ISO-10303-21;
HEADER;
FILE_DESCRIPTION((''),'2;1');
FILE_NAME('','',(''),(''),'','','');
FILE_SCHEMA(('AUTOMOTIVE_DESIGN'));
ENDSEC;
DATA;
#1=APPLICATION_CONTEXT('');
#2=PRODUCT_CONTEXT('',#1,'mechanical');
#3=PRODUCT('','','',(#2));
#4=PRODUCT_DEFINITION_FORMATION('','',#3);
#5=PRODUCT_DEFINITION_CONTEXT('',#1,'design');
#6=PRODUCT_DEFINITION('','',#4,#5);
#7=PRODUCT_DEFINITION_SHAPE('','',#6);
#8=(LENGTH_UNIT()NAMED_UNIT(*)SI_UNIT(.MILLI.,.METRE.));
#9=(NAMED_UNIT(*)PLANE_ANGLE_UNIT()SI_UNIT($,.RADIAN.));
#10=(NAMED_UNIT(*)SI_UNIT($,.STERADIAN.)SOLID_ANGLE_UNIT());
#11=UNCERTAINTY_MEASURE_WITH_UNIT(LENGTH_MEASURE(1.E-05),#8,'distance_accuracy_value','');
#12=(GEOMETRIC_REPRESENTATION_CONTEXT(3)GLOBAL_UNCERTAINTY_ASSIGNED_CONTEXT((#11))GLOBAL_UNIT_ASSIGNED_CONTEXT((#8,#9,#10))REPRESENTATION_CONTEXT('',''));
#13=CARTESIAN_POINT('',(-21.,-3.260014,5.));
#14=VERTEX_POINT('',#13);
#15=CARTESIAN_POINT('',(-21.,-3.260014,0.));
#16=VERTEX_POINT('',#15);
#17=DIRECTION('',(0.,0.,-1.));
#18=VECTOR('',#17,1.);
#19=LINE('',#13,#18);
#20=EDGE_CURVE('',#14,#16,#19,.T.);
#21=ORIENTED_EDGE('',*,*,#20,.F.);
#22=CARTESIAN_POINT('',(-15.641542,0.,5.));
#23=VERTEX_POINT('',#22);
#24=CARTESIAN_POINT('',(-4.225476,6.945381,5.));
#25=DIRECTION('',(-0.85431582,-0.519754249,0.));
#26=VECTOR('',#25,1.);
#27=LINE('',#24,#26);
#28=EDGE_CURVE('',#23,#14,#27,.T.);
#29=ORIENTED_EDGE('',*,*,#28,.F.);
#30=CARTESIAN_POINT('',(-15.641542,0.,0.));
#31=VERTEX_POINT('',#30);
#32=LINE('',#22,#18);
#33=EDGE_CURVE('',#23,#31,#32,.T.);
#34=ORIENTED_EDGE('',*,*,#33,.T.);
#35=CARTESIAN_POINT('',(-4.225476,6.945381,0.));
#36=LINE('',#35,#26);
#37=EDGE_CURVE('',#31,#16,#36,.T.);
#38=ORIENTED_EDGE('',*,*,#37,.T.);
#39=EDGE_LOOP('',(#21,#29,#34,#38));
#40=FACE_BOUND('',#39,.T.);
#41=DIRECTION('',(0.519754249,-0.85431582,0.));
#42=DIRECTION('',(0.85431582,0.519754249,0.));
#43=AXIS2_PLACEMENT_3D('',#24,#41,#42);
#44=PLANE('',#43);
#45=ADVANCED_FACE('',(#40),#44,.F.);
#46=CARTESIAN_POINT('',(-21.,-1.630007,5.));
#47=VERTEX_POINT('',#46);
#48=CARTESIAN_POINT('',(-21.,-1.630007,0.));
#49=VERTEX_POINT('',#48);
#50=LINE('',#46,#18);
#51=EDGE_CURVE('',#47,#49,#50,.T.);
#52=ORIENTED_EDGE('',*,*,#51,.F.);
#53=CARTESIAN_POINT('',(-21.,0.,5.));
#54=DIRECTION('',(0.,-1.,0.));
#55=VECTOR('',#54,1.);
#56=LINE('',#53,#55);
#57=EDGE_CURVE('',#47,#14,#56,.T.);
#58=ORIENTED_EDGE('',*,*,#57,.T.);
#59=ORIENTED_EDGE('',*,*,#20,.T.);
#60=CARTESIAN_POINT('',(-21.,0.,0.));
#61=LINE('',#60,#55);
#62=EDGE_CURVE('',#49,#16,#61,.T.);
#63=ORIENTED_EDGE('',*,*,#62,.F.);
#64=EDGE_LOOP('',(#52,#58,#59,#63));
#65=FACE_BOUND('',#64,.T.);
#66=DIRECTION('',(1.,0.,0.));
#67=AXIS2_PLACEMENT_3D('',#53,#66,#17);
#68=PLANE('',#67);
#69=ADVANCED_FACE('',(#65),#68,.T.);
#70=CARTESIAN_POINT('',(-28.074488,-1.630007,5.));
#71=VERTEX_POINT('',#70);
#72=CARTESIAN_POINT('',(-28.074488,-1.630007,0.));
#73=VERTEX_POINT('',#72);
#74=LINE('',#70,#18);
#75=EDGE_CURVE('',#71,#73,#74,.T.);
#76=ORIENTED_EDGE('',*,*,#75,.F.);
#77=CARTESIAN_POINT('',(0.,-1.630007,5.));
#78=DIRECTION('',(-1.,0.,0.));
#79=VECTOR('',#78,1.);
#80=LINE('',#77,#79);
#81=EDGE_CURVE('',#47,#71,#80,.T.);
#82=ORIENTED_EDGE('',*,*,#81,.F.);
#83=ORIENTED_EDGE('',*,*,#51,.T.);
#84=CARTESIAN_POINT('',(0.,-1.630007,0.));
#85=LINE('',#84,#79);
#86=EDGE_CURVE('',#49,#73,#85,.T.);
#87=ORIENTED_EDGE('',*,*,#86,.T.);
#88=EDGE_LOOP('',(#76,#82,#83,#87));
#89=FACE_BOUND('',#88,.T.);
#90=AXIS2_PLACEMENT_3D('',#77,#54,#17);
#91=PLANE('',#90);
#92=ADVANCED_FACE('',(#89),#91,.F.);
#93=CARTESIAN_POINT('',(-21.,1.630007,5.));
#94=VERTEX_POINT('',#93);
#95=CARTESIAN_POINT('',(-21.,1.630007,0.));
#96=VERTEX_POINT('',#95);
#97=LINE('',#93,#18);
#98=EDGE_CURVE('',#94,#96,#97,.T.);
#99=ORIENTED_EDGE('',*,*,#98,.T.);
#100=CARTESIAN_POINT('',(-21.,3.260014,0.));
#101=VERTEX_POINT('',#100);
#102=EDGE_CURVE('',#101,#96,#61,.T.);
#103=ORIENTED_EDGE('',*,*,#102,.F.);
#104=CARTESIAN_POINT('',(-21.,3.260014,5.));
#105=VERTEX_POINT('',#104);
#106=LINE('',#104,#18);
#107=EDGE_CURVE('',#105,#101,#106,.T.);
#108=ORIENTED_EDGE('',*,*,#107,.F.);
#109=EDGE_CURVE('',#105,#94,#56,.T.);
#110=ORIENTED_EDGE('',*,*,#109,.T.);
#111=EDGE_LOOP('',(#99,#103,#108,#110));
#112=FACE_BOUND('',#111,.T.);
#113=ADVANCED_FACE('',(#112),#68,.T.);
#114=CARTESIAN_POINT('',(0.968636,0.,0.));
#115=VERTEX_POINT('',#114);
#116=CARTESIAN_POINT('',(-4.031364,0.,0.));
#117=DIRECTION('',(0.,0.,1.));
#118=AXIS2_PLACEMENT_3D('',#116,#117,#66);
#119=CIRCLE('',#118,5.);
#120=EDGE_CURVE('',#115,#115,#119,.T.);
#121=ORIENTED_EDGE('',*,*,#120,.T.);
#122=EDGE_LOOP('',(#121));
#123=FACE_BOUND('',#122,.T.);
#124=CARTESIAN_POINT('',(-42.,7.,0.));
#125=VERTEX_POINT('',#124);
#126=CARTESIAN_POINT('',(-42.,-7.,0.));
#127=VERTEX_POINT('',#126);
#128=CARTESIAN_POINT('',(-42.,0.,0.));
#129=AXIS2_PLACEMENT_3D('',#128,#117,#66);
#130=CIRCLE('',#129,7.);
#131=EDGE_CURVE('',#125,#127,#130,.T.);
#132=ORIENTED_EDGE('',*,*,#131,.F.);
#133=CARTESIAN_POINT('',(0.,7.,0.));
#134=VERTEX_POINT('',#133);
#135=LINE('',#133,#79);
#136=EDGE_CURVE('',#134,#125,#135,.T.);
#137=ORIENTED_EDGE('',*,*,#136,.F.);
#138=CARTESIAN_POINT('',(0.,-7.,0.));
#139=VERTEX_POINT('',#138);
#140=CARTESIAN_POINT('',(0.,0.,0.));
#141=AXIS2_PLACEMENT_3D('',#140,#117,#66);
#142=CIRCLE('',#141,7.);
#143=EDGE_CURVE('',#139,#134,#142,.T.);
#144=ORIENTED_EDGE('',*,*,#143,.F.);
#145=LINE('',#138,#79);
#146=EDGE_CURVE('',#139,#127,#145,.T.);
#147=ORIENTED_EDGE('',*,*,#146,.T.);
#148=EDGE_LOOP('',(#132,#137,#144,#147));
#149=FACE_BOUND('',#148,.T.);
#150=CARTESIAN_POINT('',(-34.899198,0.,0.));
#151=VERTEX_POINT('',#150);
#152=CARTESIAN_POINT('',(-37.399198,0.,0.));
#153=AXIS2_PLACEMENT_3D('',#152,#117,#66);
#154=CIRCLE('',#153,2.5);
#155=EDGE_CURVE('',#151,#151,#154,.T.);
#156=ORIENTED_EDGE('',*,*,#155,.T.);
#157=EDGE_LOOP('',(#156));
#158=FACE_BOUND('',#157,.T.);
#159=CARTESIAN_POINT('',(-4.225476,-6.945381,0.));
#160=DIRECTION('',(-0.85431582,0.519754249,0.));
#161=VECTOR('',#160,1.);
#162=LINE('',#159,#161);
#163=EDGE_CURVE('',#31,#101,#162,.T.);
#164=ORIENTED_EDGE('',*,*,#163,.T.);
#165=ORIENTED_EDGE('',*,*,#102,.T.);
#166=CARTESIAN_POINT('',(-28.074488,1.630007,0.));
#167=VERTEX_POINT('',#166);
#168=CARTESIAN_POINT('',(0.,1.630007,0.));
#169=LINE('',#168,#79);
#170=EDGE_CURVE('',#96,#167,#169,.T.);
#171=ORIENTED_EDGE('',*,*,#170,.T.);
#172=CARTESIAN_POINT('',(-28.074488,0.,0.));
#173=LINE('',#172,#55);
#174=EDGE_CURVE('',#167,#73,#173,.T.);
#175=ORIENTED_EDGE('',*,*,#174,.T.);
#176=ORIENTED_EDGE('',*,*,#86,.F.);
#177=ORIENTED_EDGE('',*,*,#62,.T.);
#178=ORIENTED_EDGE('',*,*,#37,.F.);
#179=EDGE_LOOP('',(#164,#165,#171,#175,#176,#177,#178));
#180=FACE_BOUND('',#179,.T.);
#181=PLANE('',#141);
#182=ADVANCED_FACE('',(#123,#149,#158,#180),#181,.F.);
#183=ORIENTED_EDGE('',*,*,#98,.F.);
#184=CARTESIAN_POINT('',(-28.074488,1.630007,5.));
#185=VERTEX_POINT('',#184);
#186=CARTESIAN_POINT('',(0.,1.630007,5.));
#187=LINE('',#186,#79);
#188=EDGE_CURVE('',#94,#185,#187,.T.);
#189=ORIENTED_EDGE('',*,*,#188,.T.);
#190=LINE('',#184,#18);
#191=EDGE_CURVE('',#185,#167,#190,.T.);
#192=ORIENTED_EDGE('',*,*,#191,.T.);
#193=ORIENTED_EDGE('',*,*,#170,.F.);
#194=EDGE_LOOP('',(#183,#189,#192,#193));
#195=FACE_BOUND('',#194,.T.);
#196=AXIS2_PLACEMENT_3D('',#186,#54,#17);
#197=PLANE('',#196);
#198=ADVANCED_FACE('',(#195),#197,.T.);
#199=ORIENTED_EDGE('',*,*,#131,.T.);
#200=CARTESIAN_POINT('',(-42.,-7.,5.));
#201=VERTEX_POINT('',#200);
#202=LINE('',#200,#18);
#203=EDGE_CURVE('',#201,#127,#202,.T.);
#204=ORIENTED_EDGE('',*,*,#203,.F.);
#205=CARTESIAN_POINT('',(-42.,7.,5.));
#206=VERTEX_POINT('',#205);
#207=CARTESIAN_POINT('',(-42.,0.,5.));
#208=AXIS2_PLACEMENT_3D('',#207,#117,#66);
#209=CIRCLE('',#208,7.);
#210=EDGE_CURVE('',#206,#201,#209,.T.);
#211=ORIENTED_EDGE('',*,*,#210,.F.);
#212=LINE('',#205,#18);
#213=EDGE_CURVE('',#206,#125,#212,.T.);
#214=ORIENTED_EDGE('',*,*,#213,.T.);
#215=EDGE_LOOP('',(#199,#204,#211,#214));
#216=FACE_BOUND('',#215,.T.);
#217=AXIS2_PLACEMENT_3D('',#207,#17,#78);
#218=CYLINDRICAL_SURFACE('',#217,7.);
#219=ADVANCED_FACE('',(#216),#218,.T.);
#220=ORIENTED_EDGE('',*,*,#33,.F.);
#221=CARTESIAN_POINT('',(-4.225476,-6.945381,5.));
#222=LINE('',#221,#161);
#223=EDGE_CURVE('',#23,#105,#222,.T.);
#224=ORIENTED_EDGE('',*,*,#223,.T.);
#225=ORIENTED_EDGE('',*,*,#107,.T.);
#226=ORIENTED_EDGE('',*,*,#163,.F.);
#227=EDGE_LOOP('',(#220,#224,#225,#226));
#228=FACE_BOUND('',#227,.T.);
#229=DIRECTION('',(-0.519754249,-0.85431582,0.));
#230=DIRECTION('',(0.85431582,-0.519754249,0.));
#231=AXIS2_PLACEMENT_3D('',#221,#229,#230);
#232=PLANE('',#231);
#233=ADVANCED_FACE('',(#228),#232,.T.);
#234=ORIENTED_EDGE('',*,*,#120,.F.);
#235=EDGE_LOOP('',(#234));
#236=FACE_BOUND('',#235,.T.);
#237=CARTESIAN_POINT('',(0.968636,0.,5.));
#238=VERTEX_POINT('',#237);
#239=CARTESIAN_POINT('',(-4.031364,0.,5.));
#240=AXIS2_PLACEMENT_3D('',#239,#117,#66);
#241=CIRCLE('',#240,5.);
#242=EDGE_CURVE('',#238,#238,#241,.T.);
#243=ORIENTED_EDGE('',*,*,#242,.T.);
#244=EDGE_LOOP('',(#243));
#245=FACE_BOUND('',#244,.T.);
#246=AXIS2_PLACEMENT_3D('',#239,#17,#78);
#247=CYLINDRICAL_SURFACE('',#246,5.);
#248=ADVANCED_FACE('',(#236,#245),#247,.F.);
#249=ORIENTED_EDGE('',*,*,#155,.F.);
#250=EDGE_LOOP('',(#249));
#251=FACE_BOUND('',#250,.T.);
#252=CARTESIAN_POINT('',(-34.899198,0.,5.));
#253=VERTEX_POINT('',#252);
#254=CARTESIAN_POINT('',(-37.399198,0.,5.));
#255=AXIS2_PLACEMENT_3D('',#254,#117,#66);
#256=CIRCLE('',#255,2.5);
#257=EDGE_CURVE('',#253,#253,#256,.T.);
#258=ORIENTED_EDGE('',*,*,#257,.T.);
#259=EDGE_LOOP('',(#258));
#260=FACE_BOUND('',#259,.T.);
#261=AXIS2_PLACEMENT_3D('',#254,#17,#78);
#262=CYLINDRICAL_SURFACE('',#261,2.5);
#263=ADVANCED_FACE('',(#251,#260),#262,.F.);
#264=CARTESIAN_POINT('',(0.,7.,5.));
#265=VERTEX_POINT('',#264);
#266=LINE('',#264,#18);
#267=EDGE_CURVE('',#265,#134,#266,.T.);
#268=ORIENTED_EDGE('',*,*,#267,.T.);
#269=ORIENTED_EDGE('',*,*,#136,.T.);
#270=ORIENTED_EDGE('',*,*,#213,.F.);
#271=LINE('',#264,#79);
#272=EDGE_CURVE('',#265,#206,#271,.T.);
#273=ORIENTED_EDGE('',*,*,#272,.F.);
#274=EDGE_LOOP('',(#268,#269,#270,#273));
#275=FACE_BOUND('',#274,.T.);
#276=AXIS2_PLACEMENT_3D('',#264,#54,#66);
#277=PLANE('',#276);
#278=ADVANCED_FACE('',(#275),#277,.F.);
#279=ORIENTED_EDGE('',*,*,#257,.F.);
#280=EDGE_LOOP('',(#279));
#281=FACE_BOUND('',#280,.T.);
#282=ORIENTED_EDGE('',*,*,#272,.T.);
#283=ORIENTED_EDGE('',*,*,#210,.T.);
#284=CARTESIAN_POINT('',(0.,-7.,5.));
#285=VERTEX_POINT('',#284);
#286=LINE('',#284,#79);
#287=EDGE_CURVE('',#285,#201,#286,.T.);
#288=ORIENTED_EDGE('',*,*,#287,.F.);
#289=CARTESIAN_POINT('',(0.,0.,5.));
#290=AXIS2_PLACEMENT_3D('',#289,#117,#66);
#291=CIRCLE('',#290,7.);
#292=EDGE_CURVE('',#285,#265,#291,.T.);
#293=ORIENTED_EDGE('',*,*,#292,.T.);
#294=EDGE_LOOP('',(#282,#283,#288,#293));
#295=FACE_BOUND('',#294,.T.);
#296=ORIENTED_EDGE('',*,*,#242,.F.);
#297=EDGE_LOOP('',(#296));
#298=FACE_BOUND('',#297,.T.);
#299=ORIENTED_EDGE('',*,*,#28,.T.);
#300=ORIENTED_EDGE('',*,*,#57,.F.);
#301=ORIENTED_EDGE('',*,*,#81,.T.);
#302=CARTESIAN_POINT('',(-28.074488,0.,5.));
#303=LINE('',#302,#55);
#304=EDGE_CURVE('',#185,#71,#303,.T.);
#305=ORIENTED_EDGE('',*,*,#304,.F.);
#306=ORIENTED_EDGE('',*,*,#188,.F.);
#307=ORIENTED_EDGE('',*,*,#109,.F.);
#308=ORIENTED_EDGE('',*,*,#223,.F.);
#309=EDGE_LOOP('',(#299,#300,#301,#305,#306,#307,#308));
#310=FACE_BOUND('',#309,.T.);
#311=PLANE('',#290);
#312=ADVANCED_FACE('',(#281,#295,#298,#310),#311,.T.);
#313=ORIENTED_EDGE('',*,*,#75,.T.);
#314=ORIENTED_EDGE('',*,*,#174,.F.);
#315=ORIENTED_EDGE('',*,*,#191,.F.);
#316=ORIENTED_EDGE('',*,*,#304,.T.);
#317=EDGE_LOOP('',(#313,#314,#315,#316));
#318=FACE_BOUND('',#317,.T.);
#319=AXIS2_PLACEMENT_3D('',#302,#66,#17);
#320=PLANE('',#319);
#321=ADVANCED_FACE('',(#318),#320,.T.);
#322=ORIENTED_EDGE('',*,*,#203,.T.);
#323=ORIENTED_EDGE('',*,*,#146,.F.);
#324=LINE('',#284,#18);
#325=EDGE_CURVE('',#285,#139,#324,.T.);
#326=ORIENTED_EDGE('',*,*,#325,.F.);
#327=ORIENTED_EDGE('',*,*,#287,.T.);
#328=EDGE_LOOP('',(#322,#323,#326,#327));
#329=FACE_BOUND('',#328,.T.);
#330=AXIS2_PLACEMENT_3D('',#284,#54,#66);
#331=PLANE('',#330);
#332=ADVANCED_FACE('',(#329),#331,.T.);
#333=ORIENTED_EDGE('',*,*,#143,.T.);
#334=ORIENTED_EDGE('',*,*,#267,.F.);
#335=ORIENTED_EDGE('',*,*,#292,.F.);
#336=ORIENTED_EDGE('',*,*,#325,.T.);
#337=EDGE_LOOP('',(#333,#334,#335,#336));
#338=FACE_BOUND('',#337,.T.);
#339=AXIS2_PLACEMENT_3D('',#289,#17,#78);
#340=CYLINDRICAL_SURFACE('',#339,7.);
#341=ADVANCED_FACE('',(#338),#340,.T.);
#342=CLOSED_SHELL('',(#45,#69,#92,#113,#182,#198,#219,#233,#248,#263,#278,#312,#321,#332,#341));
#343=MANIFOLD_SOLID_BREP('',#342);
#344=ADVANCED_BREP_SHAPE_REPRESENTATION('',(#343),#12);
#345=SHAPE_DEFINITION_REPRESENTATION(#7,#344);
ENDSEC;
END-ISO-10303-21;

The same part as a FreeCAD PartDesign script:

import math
import FreeCAD as App
import Part
import Sketcher
Q = App.Units.Quantity

doc = App.newDocument("Part")
body = doc.addObject("PartDesign::Body", "Body")

sketch1 = doc.addObject("Sketcher::SketchObject", "Sketch")
body.addObject(sketch1)
sketch1.AttachmentSupport = (doc.XY_Plane, [""])
sketch1.MapMode = "FlatFace"
sketch1.addGeometry([
    Part.LineSegment(App.Vector(-42, -7, 0), App.Vector(0, -7, 0)),
    Part.ArcOfCircle(Part.Circle(App.Vector(0, 0, 0), App.Vector(0, 0, 1), 7), math.radians(-90), math.radians(90)),
    Part.LineSegment(App.Vector(0, 7, 0), App.Vector(-42, 7, 0)),
    Part.ArcOfCircle(Part.Circle(App.Vector(-42, 0, 0), App.Vector(0, 0, 1), 7), math.radians(90), math.radians(270)),
    Part.Circle(App.Vector(-37.4, 0, 0), App.Vector(0, 0, 1), 2.5),
    Part.LineSegment(App.Vector(-21, 1.6, 0), App.Vector(-21, 3.3, 0)),
    Part.LineSegment(App.Vector(-21, 3.3, 0), App.Vector(-15.6, 0, 0)),
    Part.LineSegment(App.Vector(-15.6, 0, 0), App.Vector(-21, -3.3, 0)),
    Part.LineSegment(App.Vector(-21, -3.3, 0), App.Vector(-21, -1.6, 0)),
    Part.LineSegment(App.Vector(-21, -1.6, 0), App.Vector(-28.1, -1.6, 0)),
    Part.LineSegment(App.Vector(-28.1, -1.6, 0), App.Vector(-28.1, 1.6, 0)),
    Part.LineSegment(App.Vector(-28.1, 1.6, 0), App.Vector(-21, 1.6, 0)),
    Part.Circle(App.Vector(-4, 0, 0), App.Vector(0, 0, 1), 5),
], False)
sketch1.addConstraint([
    Sketcher.Constraint("Tangent", 0, 2, 1, 1),
    Sketcher.Constraint("Tangent", 1, 2, 2, 1),
    Sketcher.Constraint("Tangent", 2, 2, 3, 1),
    Sketcher.Constraint("Tangent", 3, 2, 0, 1),
    Sketcher.Constraint("Coincident", 5, 2, 6, 1),
    Sketcher.Constraint("Coincident", 6, 2, 7, 1),
    Sketcher.Constraint("Coincident", 7, 2, 8, 1),
    Sketcher.Constraint("Coincident", 8, 2, 9, 1),
    Sketcher.Constraint("Coincident", 9, 2, 10, 1),
    Sketcher.Constraint("Coincident", 10, 2, 11, 1),
    Sketcher.Constraint("Coincident", 11, 2, 5, 1),
    Sketcher.Constraint("Horizontal", 0),
    Sketcher.Constraint("Horizontal", 2),
    Sketcher.Constraint("Vertical", 5),
    Sketcher.Constraint("Vertical", 8),
    Sketcher.Constraint("Horizontal", 9),
    Sketcher.Constraint("Vertical", 10),
    Sketcher.Constraint("Horizontal", 11),
    Sketcher.Constraint("Coincident", 1, 3, -1, 1),
    Sketcher.Constraint("Symmetric", 5, 2, 7, 2, -1),
    Sketcher.Constraint("PointOnObject", 4, 3, -1),
    Sketcher.Constraint("PointOnObject", 12, 3, -1),
    Sketcher.Constraint("PointOnObject", 6, 2, -1),
    Sketcher.Constraint("Equal", 5, 8),
    Sketcher.Constraint("Diameter", 4, Q("5 mm")),
    Sketcher.Constraint("Diameter", 12, Q("10 mm")),
    Sketcher.Constraint("Radius", 1, Q("7 mm")),
    Sketcher.Constraint("DistanceX", 0, 1, 0, 2, Q("42 mm")),
    Sketcher.Constraint("DistanceX", 5, 2, -1, 1, Q("21 mm")),
    Sketcher.Constraint("DistanceX", 9, 2, 9, 1, Q("7.074488 mm")),
    Sketcher.Constraint("DistanceX", 4, 3, -1, 1, Q("37.399198 mm")),
    Sketcher.Constraint("Distance", 6, Q("6.272221 mm")),
    Sketcher.Constraint("DistanceY", 5, 1, 5, 2, Q("1.630007 mm")),
    Sketcher.Constraint("DistanceY", 10, 1, 10, 2, Q("3.260014 mm")),
    Sketcher.Constraint("DistanceX", 12, 3, -1, 1, Q("4.031364 mm")),
])
pad1 = doc.addObject("PartDesign::Pad", "Pad")
body.addObject(pad1)
pad1.Profile = sketch1
pad1.Length = 5

doc.recompute()
